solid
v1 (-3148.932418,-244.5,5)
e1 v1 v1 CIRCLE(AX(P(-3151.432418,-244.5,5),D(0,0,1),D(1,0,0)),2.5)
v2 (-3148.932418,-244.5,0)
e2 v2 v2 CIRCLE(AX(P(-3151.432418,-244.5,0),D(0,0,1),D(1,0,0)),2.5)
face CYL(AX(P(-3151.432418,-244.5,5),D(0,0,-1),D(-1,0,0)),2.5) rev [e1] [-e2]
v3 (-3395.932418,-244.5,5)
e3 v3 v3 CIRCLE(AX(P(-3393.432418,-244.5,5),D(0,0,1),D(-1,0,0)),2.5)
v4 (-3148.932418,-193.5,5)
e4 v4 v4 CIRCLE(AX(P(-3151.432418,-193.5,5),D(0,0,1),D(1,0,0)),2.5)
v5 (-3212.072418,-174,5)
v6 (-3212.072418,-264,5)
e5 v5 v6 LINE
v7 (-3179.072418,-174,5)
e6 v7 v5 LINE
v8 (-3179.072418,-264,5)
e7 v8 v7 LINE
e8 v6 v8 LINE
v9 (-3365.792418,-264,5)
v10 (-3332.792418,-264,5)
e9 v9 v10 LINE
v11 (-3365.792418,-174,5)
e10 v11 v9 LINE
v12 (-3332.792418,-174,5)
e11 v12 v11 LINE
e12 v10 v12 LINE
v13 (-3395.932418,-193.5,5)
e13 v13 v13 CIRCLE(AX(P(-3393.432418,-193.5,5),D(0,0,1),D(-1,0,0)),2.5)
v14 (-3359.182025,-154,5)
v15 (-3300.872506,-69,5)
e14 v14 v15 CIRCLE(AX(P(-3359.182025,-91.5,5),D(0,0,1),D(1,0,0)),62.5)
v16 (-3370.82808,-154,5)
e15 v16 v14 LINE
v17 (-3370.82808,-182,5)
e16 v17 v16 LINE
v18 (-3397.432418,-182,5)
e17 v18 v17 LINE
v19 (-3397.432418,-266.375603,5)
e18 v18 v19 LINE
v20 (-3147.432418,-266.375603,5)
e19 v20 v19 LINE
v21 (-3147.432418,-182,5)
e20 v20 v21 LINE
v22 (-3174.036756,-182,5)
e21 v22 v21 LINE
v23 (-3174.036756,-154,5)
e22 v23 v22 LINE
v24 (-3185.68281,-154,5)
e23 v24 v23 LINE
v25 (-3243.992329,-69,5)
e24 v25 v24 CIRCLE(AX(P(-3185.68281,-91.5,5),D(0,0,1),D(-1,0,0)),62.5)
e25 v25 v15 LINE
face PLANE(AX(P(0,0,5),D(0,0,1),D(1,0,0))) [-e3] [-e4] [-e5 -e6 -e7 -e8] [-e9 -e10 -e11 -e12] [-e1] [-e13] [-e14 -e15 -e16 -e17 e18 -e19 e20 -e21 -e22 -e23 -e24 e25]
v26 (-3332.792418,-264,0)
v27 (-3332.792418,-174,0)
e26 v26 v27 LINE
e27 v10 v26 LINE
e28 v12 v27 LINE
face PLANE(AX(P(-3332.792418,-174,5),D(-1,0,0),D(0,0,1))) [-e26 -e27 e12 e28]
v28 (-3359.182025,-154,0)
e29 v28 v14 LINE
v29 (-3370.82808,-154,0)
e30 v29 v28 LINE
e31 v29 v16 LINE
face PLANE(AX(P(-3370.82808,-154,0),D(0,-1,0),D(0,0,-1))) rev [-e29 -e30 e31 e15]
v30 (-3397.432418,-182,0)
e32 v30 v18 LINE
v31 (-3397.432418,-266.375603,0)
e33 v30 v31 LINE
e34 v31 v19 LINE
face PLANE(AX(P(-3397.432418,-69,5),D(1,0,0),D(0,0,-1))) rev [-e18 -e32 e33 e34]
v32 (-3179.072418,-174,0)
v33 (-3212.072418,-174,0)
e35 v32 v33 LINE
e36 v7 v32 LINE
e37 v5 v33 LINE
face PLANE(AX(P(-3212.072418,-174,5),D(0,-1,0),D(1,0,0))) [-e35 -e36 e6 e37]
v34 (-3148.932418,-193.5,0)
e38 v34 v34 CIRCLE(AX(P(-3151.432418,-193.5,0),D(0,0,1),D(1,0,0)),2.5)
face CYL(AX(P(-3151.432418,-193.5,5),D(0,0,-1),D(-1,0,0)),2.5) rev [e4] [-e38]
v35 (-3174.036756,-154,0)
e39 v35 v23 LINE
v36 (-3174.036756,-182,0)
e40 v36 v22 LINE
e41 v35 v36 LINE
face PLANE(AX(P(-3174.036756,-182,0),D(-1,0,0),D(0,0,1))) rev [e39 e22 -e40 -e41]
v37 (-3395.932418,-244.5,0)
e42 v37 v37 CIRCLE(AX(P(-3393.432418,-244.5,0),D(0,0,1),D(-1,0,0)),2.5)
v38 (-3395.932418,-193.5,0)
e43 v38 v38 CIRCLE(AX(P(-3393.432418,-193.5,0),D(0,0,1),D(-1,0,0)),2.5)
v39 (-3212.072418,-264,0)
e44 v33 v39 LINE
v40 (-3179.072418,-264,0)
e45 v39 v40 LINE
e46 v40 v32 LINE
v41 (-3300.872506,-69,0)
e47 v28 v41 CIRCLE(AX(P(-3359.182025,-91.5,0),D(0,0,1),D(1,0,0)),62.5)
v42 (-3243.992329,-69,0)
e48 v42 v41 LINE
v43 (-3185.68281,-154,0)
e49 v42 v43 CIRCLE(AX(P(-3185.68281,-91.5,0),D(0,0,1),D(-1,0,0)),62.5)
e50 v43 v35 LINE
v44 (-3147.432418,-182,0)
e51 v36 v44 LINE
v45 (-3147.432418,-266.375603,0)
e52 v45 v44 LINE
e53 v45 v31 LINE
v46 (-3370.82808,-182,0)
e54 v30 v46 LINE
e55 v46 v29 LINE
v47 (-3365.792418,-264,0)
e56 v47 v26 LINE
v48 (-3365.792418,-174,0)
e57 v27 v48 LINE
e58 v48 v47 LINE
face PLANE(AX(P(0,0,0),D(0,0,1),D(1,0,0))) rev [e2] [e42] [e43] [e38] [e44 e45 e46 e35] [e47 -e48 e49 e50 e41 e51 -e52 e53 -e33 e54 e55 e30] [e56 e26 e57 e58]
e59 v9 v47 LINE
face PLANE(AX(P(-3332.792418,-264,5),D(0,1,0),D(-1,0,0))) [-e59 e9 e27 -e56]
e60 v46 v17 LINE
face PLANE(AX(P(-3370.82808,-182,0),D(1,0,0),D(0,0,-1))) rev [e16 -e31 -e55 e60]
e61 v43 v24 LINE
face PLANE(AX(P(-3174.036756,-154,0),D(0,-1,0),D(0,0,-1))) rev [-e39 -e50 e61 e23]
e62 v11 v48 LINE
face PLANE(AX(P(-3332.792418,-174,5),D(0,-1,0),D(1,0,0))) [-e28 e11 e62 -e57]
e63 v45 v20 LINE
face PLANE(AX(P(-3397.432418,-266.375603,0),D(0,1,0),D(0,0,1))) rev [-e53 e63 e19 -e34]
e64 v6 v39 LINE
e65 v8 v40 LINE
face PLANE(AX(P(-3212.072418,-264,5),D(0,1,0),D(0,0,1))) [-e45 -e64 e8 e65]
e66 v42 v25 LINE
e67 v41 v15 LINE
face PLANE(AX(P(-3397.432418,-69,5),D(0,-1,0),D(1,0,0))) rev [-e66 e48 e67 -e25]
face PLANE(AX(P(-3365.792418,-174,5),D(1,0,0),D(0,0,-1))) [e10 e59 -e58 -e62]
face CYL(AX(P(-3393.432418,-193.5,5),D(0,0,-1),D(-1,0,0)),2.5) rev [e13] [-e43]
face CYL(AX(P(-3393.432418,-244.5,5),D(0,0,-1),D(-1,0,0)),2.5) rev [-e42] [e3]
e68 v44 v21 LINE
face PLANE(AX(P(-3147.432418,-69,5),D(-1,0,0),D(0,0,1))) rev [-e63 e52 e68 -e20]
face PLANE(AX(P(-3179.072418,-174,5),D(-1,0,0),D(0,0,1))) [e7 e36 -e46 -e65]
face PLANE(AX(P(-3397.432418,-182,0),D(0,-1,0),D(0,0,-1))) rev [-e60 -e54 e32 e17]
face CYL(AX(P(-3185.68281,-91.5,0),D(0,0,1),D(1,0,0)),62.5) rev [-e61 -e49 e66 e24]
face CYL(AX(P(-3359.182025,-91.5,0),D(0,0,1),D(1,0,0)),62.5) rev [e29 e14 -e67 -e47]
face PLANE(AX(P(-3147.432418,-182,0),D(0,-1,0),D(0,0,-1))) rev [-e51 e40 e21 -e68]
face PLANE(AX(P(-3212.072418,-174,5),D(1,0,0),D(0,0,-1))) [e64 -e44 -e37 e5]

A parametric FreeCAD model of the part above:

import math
import FreeCAD as App
import Part
import Sketcher

V = App.Vector


def add_polygon(sketch, points):
    """Adds a closed chain of lines whose ends are joined by coincident constraints."""
    first, n = sketch.GeometryCount, len(points)
    for a, b in zip(points, points[1:] + points[:1]):
        sketch.addGeometry(Part.LineSegment(App.Vector(*a, 0), App.Vector(*b, 0)), False)
    for i in range(n):
        sketch.addConstraint(Sketcher.Constraint("Coincident", first + i, 2, first + (i + 1) % n, 1))

doc = App.newDocument("Part")
params = doc.addObject("Spreadsheet::Sheet", "Params")
for row, (alias, value) in enumerate([
    ("sketch1_diameter", "5 mm"),
    ("sketch1_width", "250 mm"),
    ("sketch1_width2", "33 mm"),
    ("sketch1_height", "90 mm"),
    ("sketch1_height2", "267.4 mm"),
    ("pad1_length", "5 mm"),
    ("sketch2_radius", "62.5 mm"),
    ("sketch2_width", "250 mm"),
    ("sketch2_height", "28 mm"),
    ("sketch2_height2", "113 mm"),
], start=1):
    params.set(f"A{row}", alias)
    params.set(f"B{row}", "=" + value)
    params.setAlias(f"B{row}", alias)

body = doc.addObject("PartDesign::Body", "Body")

# Sketch on XY plane
sketch1 = body.newObject("Sketcher::SketchObject", "Sketch")
sketch1.AttachmentSupport = (doc.getObject("XY_Plane"), [""])
sketch1.MapMode = "FlatFace"
add_polygon(sketch1, [(-3397.432418, -69), (-3397.432418, -336.4), (-3147.432418, -336.4), (-3147.432418, -69)])  # lines 0-3
sketch1.addGeometry(Part.Circle(V(-3393.432418, -244.5, 0), V(0, 0, 1), 2.5), False)  # 4
sketch1.addGeometry(Part.Circle(V(-3151.432418, -244.5, 0), V(0, 0, 1), 2.5), False)  # 5
add_polygon(sketch1, [(-3332.792418, -264), (-3365.792418, -264), (-3365.792418, -174), (-3332.792418, -174)])  # lines 6-9
sketch1.addGeometry(Part.Circle(V(-3393.432418, -193.5, 0), V(0, 0, 1), 2.5), False)  # 10
add_polygon(sketch1, [(-3179.072418, -264), (-3212.072418, -264), (-3212.072418, -174), (-3179.072418, -174)])  # lines 11-14
sketch1.addGeometry(Part.Circle(V(-3151.432418, -193.5, 0), V(0, 0, 1), 2.5), False)  # 15
sketch1.addConstraint([
    Sketcher.Constraint("Vertical", 0),
    Sketcher.Constraint("Horizontal", 1),
    Sketcher.Constraint("Vertical", 2),
    Sketcher.Constraint("Horizontal", 3),
    Sketcher.Constraint("Horizontal", 6),
    Sketcher.Constraint("Vertical", 7),
    Sketcher.Constraint("Horizontal", 8),
    Sketcher.Constraint("Vertical", 9),
    Sketcher.Constraint("Horizontal", 11),
    Sketcher.Constraint("Vertical", 12),
    Sketcher.Constraint("Horizontal", 13),
    Sketcher.Constraint("Vertical", 14),
    Sketcher.Constraint("Equal", 4, 5),
    Sketcher.Constraint("Equal", 5, 10),
    Sketcher.Constraint("Equal", 10, 15),
    Sketcher.Constraint("Horizontal", 4, 3, 5, 3),
    Sketcher.Constraint("Horizontal", 10, 3, 15, 3),
    Sketcher.Constraint("Horizontal", 9, 2, 11, 2),
    Sketcher.Constraint("Horizontal", 8, 2, 12, 2),
    Sketcher.Constraint("Vertical", 4, 3, 10, 3),
    Sketcher.Constraint("Vertical", 5, 3, 15, 3),
    Sketcher.Constraint("Equal", 8, 11),
    Sketcher.Constraint("Diameter", 4, 5.0),
    Sketcher.Constraint("DistanceX", 1, 1, 1, 2, 250.0),
    Sketcher.Constraint("DistanceX", 6, 2, 6, 1, 33.0),
    Sketcher.Constraint("DistanceY", 7, 1, 7, 2, 90.0),
    Sketcher.Constraint("DistanceY", 0, 2, 0, 1, 267.4),
    Sketcher.Constraint("DistanceY", 2, 2, -1, 1, 69.0),
    Sketcher.Constraint("DistanceY", 6, 2, -1, 1, 264.0),
    Sketcher.Constraint("DistanceX", 4, 3, 5, 3, 242.0),
    Sketcher.Constraint("DistanceY", 4, 3, 10, 3, 51.0),
    Sketcher.Constraint("DistanceX", 0, 2, 4, 3, 4.0),
    Sketcher.Constraint("DistanceY", 4, 3, -1, 1, 244.5),
    Sketcher.Constraint("DistanceX", 4, 3, 6, 2, 27.64),
    Sketcher.Constraint("DistanceX", 11, 2, 5, 3, 60.64),
    Sketcher.Constraint("DistanceX", 4, 3, -1, 1, 3393.432418),
])
sketch1.setExpression("Constraints[34]", "Params.sketch1_diameter")
sketch1.setExpression("Constraints[35]", "Params.sketch1_width")
sketch1.setExpression("Constraints[36]", "Params.sketch1_width2")
sketch1.setExpression("Constraints[37]", "Params.sketch1_height")
sketch1.setExpression("Constraints[38]", "Params.sketch1_height2")
pad1 = body.newObject("PartDesign::Pad", "Pad")
pad1.Profile = sketch1
pad1.setExpression("Length", "Params.pad1_length")

# Sketch on XY plane
sketch2 = body.newObject("Sketcher::SketchObject", "Sketch001")
sketch2.AttachmentSupport = (doc.getObject("XY_Plane"), [""])
sketch2.MapMode = "FlatFace"
sketch2.AttachmentOffset = App.Placement(V(0, 0, 5), App.Rotation())
sketch2.addGeometry(Part.LineSegment(V(-3147.432418, -69, 0), V(-3243.992329, -69, 0)), False)  # 0
sketch2.addGeometry(Part.ArcOfCircle(Part.Circle(V(-3185.68281, -91.5, 0), V(0, 0, 1), 62.5), math.radians(158.899804), math.radians(270)), False)  # 1
sketch2.addGeometry(Part.LineSegment(V(-3185.68281, -154, 0), V(-3174.036756, -154, 0)), False)  # 2
sketch2.addGeometry(Part.LineSegment(V(-3174.036756, -154, 0), V(-3174.036756, -182, 0)), False)  # 3
sketch2.addGeometry(Part.LineSegment(V(-3174.036756, -182, 0), V(-3147.432418, -182, 0)), False)  # 4
sketch2.addGeometry(Part.LineSegment(V(-3147.432418, -182, 0), V(-3147.432418, -69, 0)), False)  # 5
add_polygon(sketch2, [(-3397.432418, -266.375603), (-3397.432418, -336.4), (-3147.432418, -336.4), (-3147.432418, -266.375603)])  # lines 6-9
sketch2.addGeometry(Part.LineSegment(V(-3300.872506, -69, 0), V(-3397.432418, -69, 0)), False)  # 10
sketch2.addGeometry(Part.LineSegment(V(-3397.432418, -69, 0), V(-3397.432418, -182, 0)), False)  # 11
sketch2.addGeometry(Part.LineSegment(V(-3397.432418, -182, 0), V(-3370.82808, -182, 0)), False)  # 12
sketch2.addGeometry(Part.LineSegment(V(-3370.82808, -182, 0), V(-3370.82808, -154, 0)), False)  # 13
sketch2.addGeometry(Part.LineSegment(V(-3370.82808, -154, 0), V(-3359.182025, -154, 0)), False)  # 14
sketch2.addGeometry(Part.ArcOfCircle(Part.Circle(V(-3359.182025, -91.5, 0), V(0, 0, 1), 62.5), math.radians(-90), math.radians(21.100196)), False)  # 15
sketch2.addConstraint([
    Sketcher.Constraint("Coincident", 0, 2, 1, 1),
    Sketcher.Constraint("Tangent", 1, 2, 2, 1),
    Sketcher.Constraint("Coincident", 2, 2, 3, 1),
    Sketcher.Constraint("Coincident", 3, 2, 4, 1),
    Sketcher.Constraint("Coincident", 4, 2, 5, 1),
    Sketcher.Constraint("Coincident", 5, 2, 0, 1),
    Sketcher.Constraint("Coincident", 10, 2, 11, 1),
    Sketcher.Constraint("Coincident", 11, 2, 12, 1),
    Sketcher.Constraint("Coincident", 12, 2, 13, 1),
    Sketcher.Constraint("Coincident", 13, 2, 14, 1),
    Sketcher.Constraint("Tangent", 14, 2, 15, 1),
    Sketcher.Constraint("Coincident", 15, 2, 10, 1),
    Sketcher.Constraint("Horizontal", 0),
    Sketcher.Constraint("Horizontal", 2),
    Sketcher.Constraint("Vertical", 3),
    Sketcher.Constraint("Horizontal", 4),
    Sketcher.Constraint("Vertical", 5),
    Sketcher.Constraint("Vertical", 6),
    Sketcher.Constraint("Horizontal", 7),
    Sketcher.Constraint("Vertical", 8),
    Sketcher.Constraint("Horizontal", 9),
    Sketcher.Constraint("Horizontal", 10),
    Sketcher.Constraint("Vertical", 11),
    Sketcher.Constraint("Horizontal", 12),
    Sketcher.Constraint("Vertical", 13),
    Sketcher.Constraint("Horizontal", 14),
    Sketcher.Constraint("Equal", 1, 15),
    Sketcher.Constraint("Horizontal", 1, 3, 15, 3),
    Sketcher.Constraint("Horizontal", 5, 2, 10, 2),
    Sketcher.Constraint("Horizontal", 4, 2, 11, 2),
    Sketcher.Constraint("Vertical", 5, 2, 7, 2),
    Sketcher.Constraint("Vertical", 9, 2, 10, 2),
    Sketcher.Constraint("Equal", 0, 10),
    Sketcher.Constraint("Equal", 4, 12),
    Sketcher.Constraint("Radius", 1, 62.5),
    Sketcher.Constraint("DistanceX", 7, 1, 7, 2, 250.0),
    Sketcher.Constraint("DistanceY", 3, 2, 3, 1, 28.0),
    Sketcher.Constraint("DistanceY", 5, 1, 5, 2, 113.0),
    Sketcher.Constraint("DistanceY", 0, 2, -1, 1, 69.0),
    Sketcher.Constraint("DistanceY", 6, 2, -1, 1, 336.4),
    Sketcher.Constraint("DistanceX", 0, 2, 0, 1, 96.559911),
    Sketcher.Constraint("DistanceX", 4, 1, 4, 2, 26.604338),
    Sketcher.Constraint("DistanceY", 6, 2, 6, 1, 70.024397),
    Sketcher.Constraint("DistanceX", 1, 3, -1, 1, 3185.68281),
])
sketch2.setExpression("Constraints[38]", "Params.sketch2_radius")
sketch2.setExpression("Constraints[39]", "Params.sketch2_width")
sketch2.setExpression("Constraints[40]", "Params.sketch2_height")
sketch2.setExpression("Constraints[41]", "Params.sketch2_height2")
pocket1 = body.newObject("PartDesign::Pocket", "Pocket")
pocket1.Profile = sketch2
pocket1.Type = "ThroughAll"

doc.recompute()
